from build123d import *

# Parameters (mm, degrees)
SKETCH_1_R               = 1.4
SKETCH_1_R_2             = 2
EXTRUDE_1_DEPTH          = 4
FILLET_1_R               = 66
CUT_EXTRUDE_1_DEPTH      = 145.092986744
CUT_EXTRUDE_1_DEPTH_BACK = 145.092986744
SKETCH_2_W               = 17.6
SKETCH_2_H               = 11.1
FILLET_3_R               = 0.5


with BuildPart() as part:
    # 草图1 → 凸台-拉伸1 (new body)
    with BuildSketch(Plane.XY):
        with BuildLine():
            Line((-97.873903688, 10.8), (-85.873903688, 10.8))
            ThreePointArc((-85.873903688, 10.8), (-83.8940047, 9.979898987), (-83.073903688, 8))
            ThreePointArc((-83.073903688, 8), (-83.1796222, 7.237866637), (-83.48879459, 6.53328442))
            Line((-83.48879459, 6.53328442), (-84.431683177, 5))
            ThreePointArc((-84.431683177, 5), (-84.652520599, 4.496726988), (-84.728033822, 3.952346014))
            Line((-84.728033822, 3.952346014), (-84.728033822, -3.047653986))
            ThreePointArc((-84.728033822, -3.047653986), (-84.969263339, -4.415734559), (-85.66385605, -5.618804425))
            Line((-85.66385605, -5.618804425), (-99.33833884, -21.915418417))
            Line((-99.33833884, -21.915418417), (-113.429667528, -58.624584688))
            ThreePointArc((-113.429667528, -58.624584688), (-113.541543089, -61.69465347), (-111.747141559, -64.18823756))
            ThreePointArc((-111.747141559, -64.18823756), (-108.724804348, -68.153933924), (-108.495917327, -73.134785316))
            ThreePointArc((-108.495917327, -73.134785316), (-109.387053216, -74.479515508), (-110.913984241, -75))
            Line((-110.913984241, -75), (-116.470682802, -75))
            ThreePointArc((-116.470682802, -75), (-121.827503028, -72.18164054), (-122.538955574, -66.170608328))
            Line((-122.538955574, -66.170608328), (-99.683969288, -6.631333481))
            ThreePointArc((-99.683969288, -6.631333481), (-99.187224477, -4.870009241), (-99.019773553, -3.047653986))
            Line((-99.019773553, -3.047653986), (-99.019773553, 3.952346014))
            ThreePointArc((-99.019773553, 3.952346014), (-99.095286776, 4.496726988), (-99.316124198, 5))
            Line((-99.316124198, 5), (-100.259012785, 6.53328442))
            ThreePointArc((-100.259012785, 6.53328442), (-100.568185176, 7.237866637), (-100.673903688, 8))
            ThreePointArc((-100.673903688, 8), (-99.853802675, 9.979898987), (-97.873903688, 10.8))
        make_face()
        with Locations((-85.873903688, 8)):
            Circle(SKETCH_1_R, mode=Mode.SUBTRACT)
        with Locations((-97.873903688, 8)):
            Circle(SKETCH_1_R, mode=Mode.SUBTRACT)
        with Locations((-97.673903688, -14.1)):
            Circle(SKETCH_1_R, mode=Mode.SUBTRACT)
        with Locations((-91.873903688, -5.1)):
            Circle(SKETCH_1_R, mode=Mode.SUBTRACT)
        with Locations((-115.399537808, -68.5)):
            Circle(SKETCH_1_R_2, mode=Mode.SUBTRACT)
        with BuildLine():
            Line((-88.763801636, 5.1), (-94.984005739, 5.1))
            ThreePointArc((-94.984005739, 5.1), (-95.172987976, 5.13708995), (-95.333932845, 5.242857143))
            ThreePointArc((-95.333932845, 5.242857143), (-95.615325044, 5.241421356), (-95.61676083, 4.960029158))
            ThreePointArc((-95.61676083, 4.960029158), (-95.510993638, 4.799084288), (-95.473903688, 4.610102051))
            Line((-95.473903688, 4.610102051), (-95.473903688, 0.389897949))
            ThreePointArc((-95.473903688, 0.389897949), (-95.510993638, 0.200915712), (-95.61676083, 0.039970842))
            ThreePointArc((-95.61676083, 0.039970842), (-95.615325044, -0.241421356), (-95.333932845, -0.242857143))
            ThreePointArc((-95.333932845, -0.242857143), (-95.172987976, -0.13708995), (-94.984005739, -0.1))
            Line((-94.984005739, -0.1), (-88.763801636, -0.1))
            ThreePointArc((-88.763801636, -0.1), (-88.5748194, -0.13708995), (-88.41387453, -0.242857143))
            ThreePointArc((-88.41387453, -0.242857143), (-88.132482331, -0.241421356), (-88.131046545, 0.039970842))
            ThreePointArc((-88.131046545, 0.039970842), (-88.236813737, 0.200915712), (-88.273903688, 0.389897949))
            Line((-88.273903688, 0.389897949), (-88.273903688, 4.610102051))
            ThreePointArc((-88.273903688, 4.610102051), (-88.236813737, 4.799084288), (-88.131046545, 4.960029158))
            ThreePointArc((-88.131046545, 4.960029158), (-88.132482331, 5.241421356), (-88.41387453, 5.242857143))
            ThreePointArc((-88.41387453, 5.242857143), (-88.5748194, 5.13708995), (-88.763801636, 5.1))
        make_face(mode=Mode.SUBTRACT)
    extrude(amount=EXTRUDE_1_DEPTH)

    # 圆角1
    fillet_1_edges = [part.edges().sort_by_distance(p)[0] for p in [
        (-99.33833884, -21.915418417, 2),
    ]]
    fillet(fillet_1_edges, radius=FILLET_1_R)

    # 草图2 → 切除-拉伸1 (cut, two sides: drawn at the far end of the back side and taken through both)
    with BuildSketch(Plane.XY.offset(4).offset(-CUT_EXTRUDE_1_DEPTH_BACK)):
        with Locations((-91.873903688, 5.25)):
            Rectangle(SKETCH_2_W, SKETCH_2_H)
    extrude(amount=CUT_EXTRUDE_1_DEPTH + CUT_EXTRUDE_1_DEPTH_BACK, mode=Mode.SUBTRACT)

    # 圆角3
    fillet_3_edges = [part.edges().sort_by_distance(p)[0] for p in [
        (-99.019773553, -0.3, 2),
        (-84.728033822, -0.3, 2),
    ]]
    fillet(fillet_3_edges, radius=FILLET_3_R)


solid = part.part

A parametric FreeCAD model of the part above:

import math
import FreeCAD as App
import Part
import Sketcher
Q = App.Units.Quantity


def edges_at(feature, points):
    """Names of the edges that pass closest to the given points."""
    edges = feature.Shape.Edges
    near = lambda p: min(range(len(edges)), key=lambda i: edges[i].distToShape(Part.Vertex(*p))[0])
    return sorted({f"Edge{near(p) + 1}" for p in points})


def add_polygon(sketch, points):
    """Adds a closed chain of lines whose ends are joined by coincident constraints."""
    first, n = sketch.GeometryCount, len(points)
    for a, b in zip(points, points[1:] + points[:1]):
        sketch.addGeometry(Part.LineSegment(App.Vector(*a, 0), App.Vector(*b, 0)), False)
    for i in range(n):
        sketch.addConstraint(Sketcher.Constraint("Coincident", first + i, 2, first + (i + 1) % n, 1))

doc = App.newDocument("Part")
body = doc.addObject("PartDesign::Body", "Body")

# Sketch on XY plane
sketch1 = body.newObject("Sketcher::SketchObject", "Sketch")
sketch1.AttachmentSupport = (doc.getObject("XY_Plane"), [""])
sketch1.MapMode = "FlatFace"
sketch1.addGeometry(Part.LineSegment(App.Vector(-85.873904, 10.8, 0), App.Vector(-97.873904, 10.8, 0)), False)
sketch1.addGeometry(Part.ArcOfCircle(Part.Circle(App.Vector(-97.873904, 8, 0), App.Vector(0, 0, 1), 2.8), math.radians(90), math.radians(180)), False)
sketch1.addGeometry(Part.ArcOfCircle(Part.Circle(App.Vector(-97.873904, 8, 0), App.Vector(0, 0, 1), 2.8), math.radians(180), math.radians(211.589311)), False)
sketch1.addGeometry(Part.LineSegment(App.Vector(-100.259013, 6.533284, 0), App.Vector(-99.316124, 5, 0)), False)
sketch1.addGeometry(Part.ArcOfCircle(Part.Circle(App.Vector(-101.019774, 3.952346, 0), App.Vector(0, 0, 1), 2), math.radians(0), math.radians(31.589311)), False)
sketch1.addGeometry(Part.LineSegment(App.Vector(-99.019774, 3.952346, 0), App.Vector(-99.019774, -3.047654, 0)), False)
sketch1.addGeometry(Part.ArcOfCircle(Part.Circle(App.Vector(-109.019774, -3.047654, 0), App.Vector(0, 0, 1), 10), math.radians(-21), math.radians(0)), False)
sketch1.addGeometry(Part.LineSegment(App.Vector(-99.683969, -6.631333, 0), App.Vector(-122.538956, -66.170608, 0)), False)
sketch1.addGeometry(Part.ArcOfCircle(Part.Circle(App.Vector(-116.470683, -68.5, 0), App.Vector(0, 0, 1), 6.5), math.radians(159), math.radians(270)), False)
sketch1.addGeometry(Part.LineSegment(App.Vector(-116.470683, -75, 0), App.Vector(-110.913984, -75, 0)), False)
sketch1.addGeometry(Part.ArcOfCircle(Part.Circle(App.Vector(-110.913984, -72.5, 0), App.Vector(0, 0, 1), 2.5), math.radians(-90), math.radians(-14.709252)), False)
sketch1.addGeometry(Part.ArcOfCircle(Part.Circle(App.Vector(-116.586416, -71.010886, 0), App.Vector(0, 0, 1), 8.364635), math.radians(-14.709252), math.radians(54.652093)), False)
sketch1.addGeometry(Part.ArcOfCircle(Part.Circle(App.Vector(-109.00546, -60.322879, 0), App.Vector(0, 0, 1), 4.738968), math.radians(159), math.radians(234.652093)), False)
sketch1.addGeometry(Part.LineSegment(App.Vector(-113.429668, -58.624585, 0), App.Vector(-99.338339, -21.915418, 0)), False)
sketch1.addGeometry(Part.LineSegment(App.Vector(-99.338339, -21.915418, 0), App.Vector(-85.663856, -5.618804, 0)), False)
sketch1.addGeometry(Part.ArcOfCircle(Part.Circle(App.Vector(-88.728034, -3.047654, 0), App.Vector(0, 0, 1), 4), math.radians(-40), math.radians(0)), False)
sketch1.addGeometry(Part.LineSegment(App.Vector(-84.728034, -3.047654, 0), App.Vector(-84.728034, 3.952346, 0)), False)
sketch1.addGeometry(Part.ArcOfCircle(Part.Circle(App.Vector(-82.728034, 3.952346, 0), App.Vector(0, 0, 1), 2), math.radians(148.410689), math.radians(180)), False)
sketch1.addGeometry(Part.LineSegment(App.Vector(-84.431683, 5, 0), App.Vector(-83.488795, 6.533284, 0)), False)
sketch1.addGeometry(Part.ArcOfCircle(Part.Circle(App.Vector(-85.873904, 8, 0), App.Vector(0, 0, 1), 2.8), math.radians(-31.58931), math.radians(0)), False)
sketch1.addGeometry(Part.ArcOfCircle(Part.Circle(App.Vector(-85.873904, 8, 0), App.Vector(0, 0, 1), 2.8), math.radians(0), math.radians(90)), False)
sketch1.addGeometry(Part.Circle(App.Vector(-115.399538, -68.5, 0), App.Vector(0, 0, 1), 2), False)
sketch1.addGeometry(Part.Circle(App.Vector(-97.673904, -14.1, 0), App.Vector(0, 0, 1), 1.4), False)
sketch1.addGeometry(Part.Circle(App.Vector(-91.873904, -5.1, 0), App.Vector(0, 0, 1), 1.4), False)
sketch1.addGeometry(Part.Circle(App.Vector(-85.873904, 8, 0), App.Vector(0, 0, 1), 1.4), False)
sketch1.addGeometry(Part.ArcOfCircle(Part.Circle(App.Vector(-88.763802, 5.6, 0), App.Vector(0, 0, 1), 0.5), math.radians(-90), math.radians(-45.584691)), False)
sketch1.addGeometry(Part.ArcOfCircle(Part.Circle(App.Vector(-88.273904, 5.1, 0), App.Vector(0, 0, 1), 0.2), math.radians(-44.415308), math.radians(134.415308)), False)
sketch1.addGeometry(Part.ArcOfCircle(Part.Circle(App.Vector(-87.773904, 4.610102, 0), App.Vector(0, 0, 1), 0.5), math.radians(135.584692), math.radians(180)), False)
sketch1.addGeometry(Part.LineSegment(App.Vector(-88.273904, 4.610102, 0), App.Vector(-88.273904, 0.389898, 0)), False)
sketch1.addGeometry(Part.ArcOfCircle(Part.Circle(App.Vector(-87.773904, 0.389898, 0), App.Vector(0, 0, 1), 0.5), math.radians(-180), math.radians(-135.584692)), False)
sketch1.addGeometry(Part.ArcOfCircle(Part.Circle(App.Vector(-88.273904, -0.1, 0), App.Vector(0, 0, 1), 0.2), math.radians(-134.415308), math.radians(44.415308)), False)
sketch1.addGeometry(Part.ArcOfCircle(Part.Circle(App.Vector(-88.763802, -0.6, 0), App.Vector(0, 0, 1), 0.5), math.radians(45.584691), math.radians(90)), False)
sketch1.addGeometry(Part.LineSegment(App.Vector(-88.763802, -0.1, 0), App.Vector(-94.984006, -0.1, 0)), False)
sketch1.addGeometry(Part.ArcOfCircle(Part.Circle(App.Vector(-94.984006, -0.6, 0), App.Vector(0, 0, 1), 0.5), math.radians(90), math.radians(134.415309)), False)
sketch1.addGeometry(Part.ArcOfCircle(Part.Circle(App.Vector(-95.473904, -0.1, 0), App.Vector(0, 0, 1), 0.2), math.radians(135.584692), math.radians(314.415308)), False)
sketch1.addGeometry(Part.ArcOfCircle(Part.Circle(App.Vector(-95.973904, 0.389898, 0), App.Vector(0, 0, 1), 0.5), math.radians(-44.415308), math.radians(0)), False)
sketch1.addGeometry(Part.LineSegment(App.Vector(-95.473904, 0.389898, 0), App.Vector(-95.473904, 4.610102, 0)), False)
sketch1.addGeometry(Part.ArcOfCircle(Part.Circle(App.Vector(-95.973904, 4.610102, 0), App.Vector(0, 0, 1), 0.5), math.radians(0), math.radians(44.415308)), False)
sketch1.addGeometry(Part.ArcOfCircle(Part.Circle(App.Vector(-95.473904, 5.1, 0), App.Vector(0, 0, 1), 0.2), math.radians(45.584692), math.radians(224.415308)), False)
sketch1.addGeometry(Part.ArcOfCircle(Part.Circle(App.Vector(-94.984006, 5.6, 0), App.Vector(0, 0, 1), 0.5), math.radians(-134.415309), math.radians(-90)), False)
sketch1.addGeometry(Part.LineSegment(App.Vector(-94.984006, 5.1, 0), App.Vector(-88.763802, 5.1, 0)), False)
sketch1.addGeometry(Part.Circle(App.Vector(-97.873904, 8, 0), App.Vector(0, 0, 1), 1.4), False)
sketch1.addConstraint(Sketcher.Constraint("Tangent", 0, 2, 1, 1))
sketch1.addConstraint(Sketcher.Constraint("Tangent", 1, 2, 2, 1))
sketch1.addConstraint(Sketcher.Constraint("Tangent", 2, 2, 3, 1))
sketch1.addConstraint(Sketcher.Constraint("Tangent", 3, 2, 4, 2))
sketch1.addConstraint(Sketcher.Constraint("Tangent", 4, 1, 5, 1))
sketch1.addConstraint(Sketcher.Constraint("Tangent", 5, 2, 6, 2))
sketch1.addConstraint(Sketcher.Constraint("Tangent", 6, 1, 7, 1))
sketch1.addConstraint(Sketcher.Constraint("Tangent", 7, 2, 8, 1))
sketch1.addConstraint(Sketcher.Constraint("Tangent", 8, 2, 9, 1))
sketch1.addConstraint(Sketcher.Constraint("Tangent", 9, 2, 10, 1))
sketch1.addConstraint(Sketcher.Constraint("Tangent", 10, 2, 11, 1))
sketch1.addConstraint(Sketcher.Constraint("Tangent", 11, 2, 12, 2))
sketch1.addConstraint(Sketcher.Constraint("Tangent", 12, 1, 13, 1))
sketch1.addConstraint(Sketcher.Constraint("Coincident", 13, 2, 14, 1))
sketch1.addConstraint(Sketcher.Constraint("Tangent", 14, 2, 15, 1))
sketch1.addConstraint(Sketcher.Constraint("Tangent", 15, 2, 16, 1))
sketch1.addConstraint(Sketcher.Constraint("Tangent", 16, 2, 17, 2))
sketch1.addConstraint(Sketcher.Constraint("Tangent", 17, 1, 18, 1))
sketch1.addConstraint(Sketcher.Constraint("Tangent", 18, 2, 19, 1))
sketch1.addConstraint(Sketcher.Constraint("Tangent", 19, 2, 20, 1))
sketch1.addConstraint(Sketcher.Constraint("Tangent", 20, 2, 0, 1))
sketch1.addConstraint(Sketcher.Constraint("Tangent", 25, 2, 26, 2))
sketch1.addConstraint(Sketcher.Constraint("Tangent", 26, 1, 27, 1))
sketch1.addConstraint(Sketcher.Constraint("Tangent", 27, 2, 28, 1))
sketch1.addConstraint(Sketcher.Constraint("Tangent", 28, 2, 29, 1))
sketch1.addConstraint(Sketcher.Constraint("Tangent", 29, 2, 30, 2))
sketch1.addConstraint(Sketcher.Constraint("Tangent", 30, 1, 31, 1))
sketch1.addConstraint(Sketcher.Constraint("Tangent", 31, 2, 32, 1))
sketch1.addConstraint(Sketcher.Constraint("Tangent", 32, 2, 33, 1))
sketch1.addConstraint(Sketcher.Constraint("Tangent", 33, 2, 34, 2))
sketch1.addConstraint(Sketcher.Constraint("Tangent", 34, 1, 35, 1))
sketch1.addConstraint(Sketcher.Constraint("Tangent", 35, 2, 36, 1))
sketch1.addConstraint(Sketcher.Constraint("Tangent", 36, 2, 37, 1))
sketch1.addConstraint(Sketcher.Constraint("Tangent", 37, 2, 38, 2))
sketch1.addConstraint(Sketcher.Constraint("Tangent", 38, 1, 39, 1))
sketch1.addConstraint(Sketcher.Constraint("Tangent", 39, 2, 40, 1))
sketch1.addConstraint(Sketcher.Constraint("Tangent", 40, 2, 25, 1))
sketch1.addConstraint(Sketcher.Constraint("Horizontal", 0))
sketch1.addConstraint(Sketcher.Constraint("Vertical", 5))
sketch1.addConstraint(Sketcher.Constraint("Horizontal", 9))
sketch1.addConstraint(Sketcher.Constraint("Vertical", 16))
sketch1.addConstraint(Sketcher.Constraint("Vertical", 28))
sketch1.addConstraint(Sketcher.Constraint("Horizontal", 32))
sketch1.addConstraint(Sketcher.Constraint("Vertical", 36))
sketch1.addConstraint(Sketcher.Constraint("Horizontal", 40))
sketch1.addConstraint(Sketcher.Constraint("Coincident", 24, 3, 19, 3))
sketch1.addConstraint(Sketcher.Constraint("Coincident", 41, 3, 1, 3))
sketch1.addConstraint(Sketcher.Constraint("Equal", 1, 2))
sketch1.addConstraint(Sketcher.Constraint("Equal", 4, 17))
sketch1.addConstraint(Sketcher.Constraint("Equal", 2, 19))
sketch1.addConstraint(Sketcher.Constraint("Equal", 19, 20))
sketch1.addConstraint(Sketcher.Constraint("Equal", 17, 21))
sketch1.addConstraint(Sketcher.Constraint("Equal", 22, 23))
sketch1.addConstraint(Sketcher.Constraint("Equal", 23, 24))
sketch1.addConstraint(Sketcher.Constraint("Equal", 25, 27))
sketch1.addConstraint(Sketcher.Constraint("Equal", 27, 29))
sketch1.addConstraint(Sketcher.Constraint("Equal", 26, 30))
sketch1.addConstraint(Sketcher.Constraint("Equal", 29, 31))
sketch1.addConstraint(Sketcher.Constraint("Equal", 31, 33))
sketch1.addConstraint(Sketcher.Constraint("Equal", 30, 34))
sketch1.addConstraint(Sketcher.Constraint("Equal", 33, 35))
sketch1.addConstraint(Sketcher.Constraint("Equal", 35, 37))
sketch1.addConstraint(Sketcher.Constraint("Equal", 34, 38))
sketch1.addConstraint(Sketcher.Constraint("Equal", 37, 39))
sketch1.addConstraint(Sketcher.Constraint("Equal", 24, 41))
sketch1.addConstraint(Sketcher.Constraint("Parallel", 7, 13))
sketch1.addConstraint(Sketcher.Constraint("Horizontal", 6, 3, 15, 3))
sketch1.addConstraint(Sketcher.Constraint("Horizontal", 4, 3, 17, 3))
sketch1.addConstraint(Sketcher.Constraint("Horizontal", 8, 3, 21, 3))
sketch1.addConstraint(Sketcher.Constraint("Horizontal", 30, 3, 34, 3))
sketch1.addConstraint(Sketcher.Constraint("Horizontal", 29, 3, 35, 3))
sketch1.addConstraint(Sketcher.Constraint("Horizontal", 27, 3, 37, 3))
sketch1.addConstraint(Sketcher.Constraint("Horizontal", 26, 3, 38, 3))
sketch1.addConstraint(Sketcher.Constraint("Horizontal", 41, 3, 1, 2))
sketch1.addConstraint(Sketcher.Constraint("Horizontal", 3, 2, 17, 1))
sketch1.addConstraint(Sketcher.Constraint("Horizontal", 1, 2, 19, 2))
sketch1.addConstraint(Sketcher.Constraint("Horizontal", 34, 3, 31, 2))
sketch1.addConstraint(Sketcher.Constraint("Horizontal", 38, 3, 39, 2))
sketch1.addConstraint(Sketcher.Constraint("Vertical", 26, 3, 30, 3))
sketch1.addConstraint(Sketcher.Constraint("Vertical", 30, 3, 27, 2))
sketch1.addConstraint(Sketcher.Constraint("Diameter", 21, 4.0))
sketch1.addConstraint(Sketcher.Constraint("Radius", 6, 10.0))
sketch1.addConstraint(Sketcher.Constraint("Radius", 15, 4.0))
sketch1.addConstraint(Sketcher.Constraint("Diameter", 22, 2.8))
sketch1.addConstraint(Sketcher.Constraint("Radius", 1, 2.8))
sketch1.addConstraint(Sketcher.Constraint("Radius", 8, 6.5))
sketch1.addConstraint(Sketcher.Constraint("Radius", 10, 2.5))
sketch1.addConstraint(Sketcher.Constraint("Radius", 25, 0.5))
sketch1.addConstraint(Sketcher.Constraint("Radius", 26, 0.2))
sketch1.addConstraint(Sketcher.Constraint("DistanceX", 0, 2, 0, 1, 12.0))
sketch1.addConstraint(Sketcher.Constraint("DistanceY", 5, 2, 5, 1, 7.0))
sketch1.addConstraint(Sketcher.Constraint("Angle", 7, Q("-111 deg")))
sketch1.addConstraint(Sketcher.Constraint("Angle", 14, Q("50 deg")))
sketch1.addConstraint(Sketcher.Constraint("DistanceY", -1, 1, 1, 3, 8.0))
sketch1.addConstraint(Sketcher.Constraint("DistanceY", -1, 1, 3, 2, 5.0))
sketch1.addConstraint(Sketcher.Constraint("DistanceY", 8, 2, -1, 1, 75.0))
sketch1.addConstraint(Sketcher.Constraint("Distance", 3, 1.8))
sketch1.addConstraint(Sketcher.Constraint("DistanceY", 22, 3, -1, 1, 14.1))
sketch1.addConstraint(Sketcher.Constraint("DistanceY", 23, 3, -1, 1, 5.1))
sketch1.addConstraint(Sketcher.Constraint("DistanceY", -1, 1, 25, 3, 5.6))
sketch1.addConstraint(Sketcher.Constraint("DistanceY", 30, 3, -1, 1, 0.1))
sketch1.addConstraint(Sketcher.Constraint("DistanceX", 9, 1, 9, 2, 5.556699))
sketch1.addConstraint(Sketcher.Constraint("Radius", 11, 8.364635))
sketch1.addConstraint(Sketcher.Constraint("Radius", 12, 4.738968))
sketch1.addConstraint(Sketcher.Constraint("DistanceX", 25, 3, -1, 1, 88.763802))
sketch1.addConstraint(Sketcher.Constraint("Distance", 13, 39.32084))
sketch1.addConstraint(Sketcher.Constraint("Distance", 14, 21.273719))
sketch1.addConstraint(Sketcher.Constraint("DistanceX", 32, 2, 32, 1, 6.220204))
sketch1.addConstraint(Sketcher.Constraint("DistanceX", 12, 3, -1, 1, 109.00546))
sketch1.addConstraint(Sketcher.Constraint("DistanceX", 21, 3, -1, 1, 115.399538))
sketch1.addConstraint(Sketcher.Constraint("DistanceX", 22, 3, -1, 1, 97.673904))
sketch1.addConstraint(Sketcher.Constraint("DistanceX", 23, 3, -1, 1, 91.873904))
pad1 = body.newObject("PartDesign::Pad", "Pad")
pad1.Profile = sketch1
pad1.Length = 4
doc.recompute()

fillet = body.newObject("PartDesign::Fillet", "Fillet")
fillet.Base = (pad1, edges_at(pad1, [(-99.338, -21.915, 2)]))
fillet.Radius = 66

# Sketch on XY plane
sketch2 = body.newObject("Sketcher::SketchObject", "Sketch001")
sketch2.AttachmentSupport = (doc.getObject("XY_Plane"), [""])
sketch2.MapMode = "FlatFace"
sketch2.AttachmentOffset = App.Placement(App.Vector(0, 0, 4), App.Rotation())
add_polygon(sketch2, [(-100.673904, 10.8), (-100.673904, -0.3), (-83.073904, -0.3), (-83.073904, 10.8)])  # lines 0-3
sketch2.addConstraint(Sketcher.Constraint("Vertical", 0))
sketch2.addConstraint(Sketcher.Constraint("Horizontal", 1))
sketch2.addConstraint(Sketcher.Constraint("Vertical", 2))
sketch2.addConstraint(Sketcher.Constraint("Horizontal", 3))
sketch2.addConstraint(Sketcher.Constraint("DistanceX", 1, 1, 1, 2, 17.6))
sketch2.addConstraint(Sketcher.Constraint("DistanceY", 0, 2, 0, 1, 11.1))
sketch2.addConstraint(Sketcher.Constraint("DistanceY", 0, 2, -1, 1, 0.3))
sketch2.addConstraint(Sketcher.Constraint("DistanceX", 0, 2, -1, 1, 100.673904))
pocket1 = body.newObject("PartDesign::Pocket", "Pocket")
pocket1.Profile = sketch2
pocket1.Type = "ThroughAll"
pocket1.Midplane = True
doc.recompute()

fillet2 = body.newObject("PartDesign::Fillet", "Fillet001")
fillet2.Base = (pocket1, edges_at(pocket1, [(-99.02, -0.3, 2), (-84.728, -0.3, 2)]))
fillet2.Radius = 0.5

doc.recompute()
